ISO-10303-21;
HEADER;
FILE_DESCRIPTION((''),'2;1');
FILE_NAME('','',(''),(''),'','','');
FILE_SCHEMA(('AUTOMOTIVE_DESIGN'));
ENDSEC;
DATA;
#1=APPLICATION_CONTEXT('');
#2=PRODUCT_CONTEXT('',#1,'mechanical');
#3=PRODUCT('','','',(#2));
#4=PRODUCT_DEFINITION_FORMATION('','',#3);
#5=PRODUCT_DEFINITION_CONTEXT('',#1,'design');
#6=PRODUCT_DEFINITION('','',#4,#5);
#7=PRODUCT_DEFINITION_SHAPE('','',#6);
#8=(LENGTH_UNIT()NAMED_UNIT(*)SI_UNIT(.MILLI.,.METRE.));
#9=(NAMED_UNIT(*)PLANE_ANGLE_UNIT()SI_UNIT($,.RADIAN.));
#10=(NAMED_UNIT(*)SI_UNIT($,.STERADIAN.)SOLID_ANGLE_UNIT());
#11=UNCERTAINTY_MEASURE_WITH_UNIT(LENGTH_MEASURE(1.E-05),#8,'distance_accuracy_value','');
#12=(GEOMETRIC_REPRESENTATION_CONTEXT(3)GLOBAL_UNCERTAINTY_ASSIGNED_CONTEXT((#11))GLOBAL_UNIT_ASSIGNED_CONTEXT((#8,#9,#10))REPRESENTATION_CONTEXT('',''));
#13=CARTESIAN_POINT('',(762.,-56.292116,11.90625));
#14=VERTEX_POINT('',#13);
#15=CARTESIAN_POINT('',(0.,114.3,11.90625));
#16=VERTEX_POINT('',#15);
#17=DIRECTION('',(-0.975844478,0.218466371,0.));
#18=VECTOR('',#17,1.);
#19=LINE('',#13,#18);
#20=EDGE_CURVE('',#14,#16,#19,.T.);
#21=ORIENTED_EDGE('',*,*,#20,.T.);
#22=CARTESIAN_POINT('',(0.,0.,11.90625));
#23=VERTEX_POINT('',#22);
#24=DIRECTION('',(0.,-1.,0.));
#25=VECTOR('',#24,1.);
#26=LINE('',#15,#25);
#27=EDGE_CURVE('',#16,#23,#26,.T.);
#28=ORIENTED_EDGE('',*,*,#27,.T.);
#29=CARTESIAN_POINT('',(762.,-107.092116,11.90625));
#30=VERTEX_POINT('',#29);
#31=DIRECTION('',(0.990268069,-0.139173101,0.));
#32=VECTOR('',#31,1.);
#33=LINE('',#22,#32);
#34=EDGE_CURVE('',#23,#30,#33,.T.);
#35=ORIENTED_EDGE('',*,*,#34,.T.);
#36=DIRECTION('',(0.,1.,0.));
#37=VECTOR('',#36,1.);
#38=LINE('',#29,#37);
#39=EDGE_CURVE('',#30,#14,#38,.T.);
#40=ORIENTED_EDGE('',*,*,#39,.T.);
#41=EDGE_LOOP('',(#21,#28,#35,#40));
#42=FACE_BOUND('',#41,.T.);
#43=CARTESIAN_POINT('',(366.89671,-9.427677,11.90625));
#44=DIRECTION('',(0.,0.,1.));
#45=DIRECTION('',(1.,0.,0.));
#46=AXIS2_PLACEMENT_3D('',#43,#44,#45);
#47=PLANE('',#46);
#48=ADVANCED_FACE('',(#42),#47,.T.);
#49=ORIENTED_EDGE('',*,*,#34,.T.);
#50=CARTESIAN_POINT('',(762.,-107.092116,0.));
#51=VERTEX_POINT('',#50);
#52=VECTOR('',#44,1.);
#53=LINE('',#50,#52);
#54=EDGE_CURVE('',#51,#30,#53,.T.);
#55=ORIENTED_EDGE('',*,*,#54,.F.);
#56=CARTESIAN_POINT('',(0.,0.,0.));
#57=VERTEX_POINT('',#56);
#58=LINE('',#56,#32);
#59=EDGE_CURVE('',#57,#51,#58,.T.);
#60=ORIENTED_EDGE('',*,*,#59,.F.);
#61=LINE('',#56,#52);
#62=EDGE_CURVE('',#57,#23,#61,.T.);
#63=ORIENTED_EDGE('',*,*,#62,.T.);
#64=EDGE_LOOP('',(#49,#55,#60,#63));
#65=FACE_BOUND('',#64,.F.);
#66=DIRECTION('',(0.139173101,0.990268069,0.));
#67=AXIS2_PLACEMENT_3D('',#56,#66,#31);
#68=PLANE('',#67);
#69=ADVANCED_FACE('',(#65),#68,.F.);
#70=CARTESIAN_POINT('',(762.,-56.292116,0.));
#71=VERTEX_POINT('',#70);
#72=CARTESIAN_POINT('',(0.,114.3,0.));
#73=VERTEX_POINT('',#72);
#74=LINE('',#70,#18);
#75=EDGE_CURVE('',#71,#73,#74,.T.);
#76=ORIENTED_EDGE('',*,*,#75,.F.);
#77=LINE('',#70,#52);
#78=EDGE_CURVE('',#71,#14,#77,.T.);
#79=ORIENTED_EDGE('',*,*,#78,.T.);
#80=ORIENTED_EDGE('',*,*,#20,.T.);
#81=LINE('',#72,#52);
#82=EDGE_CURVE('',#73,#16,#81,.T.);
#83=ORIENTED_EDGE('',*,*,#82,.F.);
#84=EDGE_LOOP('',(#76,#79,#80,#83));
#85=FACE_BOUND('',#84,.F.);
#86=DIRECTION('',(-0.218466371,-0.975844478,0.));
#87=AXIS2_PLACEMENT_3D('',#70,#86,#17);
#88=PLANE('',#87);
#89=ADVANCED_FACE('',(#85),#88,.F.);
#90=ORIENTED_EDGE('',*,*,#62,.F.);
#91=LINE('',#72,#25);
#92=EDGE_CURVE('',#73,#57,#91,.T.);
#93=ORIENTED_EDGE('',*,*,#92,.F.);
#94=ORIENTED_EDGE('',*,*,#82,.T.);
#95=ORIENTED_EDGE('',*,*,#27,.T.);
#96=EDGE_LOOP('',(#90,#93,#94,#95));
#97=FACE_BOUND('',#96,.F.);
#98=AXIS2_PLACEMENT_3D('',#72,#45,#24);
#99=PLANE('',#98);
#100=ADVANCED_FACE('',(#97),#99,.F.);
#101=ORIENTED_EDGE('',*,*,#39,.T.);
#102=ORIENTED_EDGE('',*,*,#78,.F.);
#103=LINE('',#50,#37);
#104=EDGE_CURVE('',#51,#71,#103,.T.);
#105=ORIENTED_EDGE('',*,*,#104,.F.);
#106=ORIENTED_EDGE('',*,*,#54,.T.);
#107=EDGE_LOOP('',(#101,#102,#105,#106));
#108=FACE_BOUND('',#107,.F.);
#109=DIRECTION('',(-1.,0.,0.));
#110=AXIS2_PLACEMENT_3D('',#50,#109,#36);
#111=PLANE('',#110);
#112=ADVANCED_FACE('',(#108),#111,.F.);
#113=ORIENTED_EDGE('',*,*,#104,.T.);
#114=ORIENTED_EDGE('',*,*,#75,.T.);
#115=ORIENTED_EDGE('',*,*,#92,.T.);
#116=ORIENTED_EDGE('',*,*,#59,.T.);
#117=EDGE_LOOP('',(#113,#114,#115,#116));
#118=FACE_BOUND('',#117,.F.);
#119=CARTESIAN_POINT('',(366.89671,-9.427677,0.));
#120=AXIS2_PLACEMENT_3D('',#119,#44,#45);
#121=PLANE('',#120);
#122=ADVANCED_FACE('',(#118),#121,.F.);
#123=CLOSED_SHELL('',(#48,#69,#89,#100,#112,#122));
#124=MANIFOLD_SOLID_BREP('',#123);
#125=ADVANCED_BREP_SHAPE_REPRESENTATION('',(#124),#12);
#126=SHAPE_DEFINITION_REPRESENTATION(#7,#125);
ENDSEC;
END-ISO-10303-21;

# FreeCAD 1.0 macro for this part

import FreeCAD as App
import Part
import Sketcher
from FreeCAD import Vector
Q = App.Units.Quantity


def add_polygon(sketch, points):
    """Adds a closed chain of lines whose ends are joined by coincident constraints."""
    first, n = sketch.GeometryCount, len(points)
    for a, b in zip(points, points[1:] + points[:1]):
        sketch.addGeometry(Part.LineSegment(App.Vector(*a, 0), App.Vector(*b, 0)), False)
    for i in range(n):
        sketch.addConstraint(Sketcher.Constraint("Coincident", first + i, 2, first + (i + 1) % n, 1))

doc = App.newDocument("Part")
params = doc.addObject("Spreadsheet::Sheet", "Params")
for row, (alias, value) in enumerate([
    ("sketch1_height", "2 in"),
    ("sketch1_height2", "4.5 in"),
    ("pad1_length", "0.46875 in"),
], start=1):
    params.set(f"A{row}", alias)
    params.set(f"B{row}", "=" + value)
    params.setAlias(f"B{row}", alias)

body = doc.addObject("PartDesign::Body", "Body")

sketch1 = body.newObject("Sketcher::SketchObject", "Sketch")
sketch1.AttachmentSupport = (doc.getObject("XY_Plane"), [""])
sketch1.MapMode = "FlatFace"
add_polygon(sketch1, [(0, 114), (0, 0), (762, -107), (762, -56)])
sketch1.addConstraint([
    Sketcher.Constraint("Vertical", 0),
    Sketcher.Constraint("Vertical", 2),
    Sketcher.Constraint("Coincident", 0, 2, -1, 1),
    Sketcher.Constraint("DistanceY", 2, 1, 2, 2, Q("2 in")),
    Sketcher.Constraint("DistanceY", 0, 2, 0, 1, Q("4.5 in")),
    Sketcher.Constraint("DistanceX", -1, 1, 1, 2, Q("30 in")),
    Sketcher.Constraint("Angle", 1, Q("-8 deg")),
])
sketch1.setExpression("Constraints[7]", "Params.sketch1_height")
sketch1.setExpression("Constraints[8]", "Params.sketch1_height2")
pad1 = body.newObject("PartDesign::Pad", "Pad")
pad1.Profile = sketch1
pad1.setExpression("Length", "Params.pad1_length")

doc.recompute()
